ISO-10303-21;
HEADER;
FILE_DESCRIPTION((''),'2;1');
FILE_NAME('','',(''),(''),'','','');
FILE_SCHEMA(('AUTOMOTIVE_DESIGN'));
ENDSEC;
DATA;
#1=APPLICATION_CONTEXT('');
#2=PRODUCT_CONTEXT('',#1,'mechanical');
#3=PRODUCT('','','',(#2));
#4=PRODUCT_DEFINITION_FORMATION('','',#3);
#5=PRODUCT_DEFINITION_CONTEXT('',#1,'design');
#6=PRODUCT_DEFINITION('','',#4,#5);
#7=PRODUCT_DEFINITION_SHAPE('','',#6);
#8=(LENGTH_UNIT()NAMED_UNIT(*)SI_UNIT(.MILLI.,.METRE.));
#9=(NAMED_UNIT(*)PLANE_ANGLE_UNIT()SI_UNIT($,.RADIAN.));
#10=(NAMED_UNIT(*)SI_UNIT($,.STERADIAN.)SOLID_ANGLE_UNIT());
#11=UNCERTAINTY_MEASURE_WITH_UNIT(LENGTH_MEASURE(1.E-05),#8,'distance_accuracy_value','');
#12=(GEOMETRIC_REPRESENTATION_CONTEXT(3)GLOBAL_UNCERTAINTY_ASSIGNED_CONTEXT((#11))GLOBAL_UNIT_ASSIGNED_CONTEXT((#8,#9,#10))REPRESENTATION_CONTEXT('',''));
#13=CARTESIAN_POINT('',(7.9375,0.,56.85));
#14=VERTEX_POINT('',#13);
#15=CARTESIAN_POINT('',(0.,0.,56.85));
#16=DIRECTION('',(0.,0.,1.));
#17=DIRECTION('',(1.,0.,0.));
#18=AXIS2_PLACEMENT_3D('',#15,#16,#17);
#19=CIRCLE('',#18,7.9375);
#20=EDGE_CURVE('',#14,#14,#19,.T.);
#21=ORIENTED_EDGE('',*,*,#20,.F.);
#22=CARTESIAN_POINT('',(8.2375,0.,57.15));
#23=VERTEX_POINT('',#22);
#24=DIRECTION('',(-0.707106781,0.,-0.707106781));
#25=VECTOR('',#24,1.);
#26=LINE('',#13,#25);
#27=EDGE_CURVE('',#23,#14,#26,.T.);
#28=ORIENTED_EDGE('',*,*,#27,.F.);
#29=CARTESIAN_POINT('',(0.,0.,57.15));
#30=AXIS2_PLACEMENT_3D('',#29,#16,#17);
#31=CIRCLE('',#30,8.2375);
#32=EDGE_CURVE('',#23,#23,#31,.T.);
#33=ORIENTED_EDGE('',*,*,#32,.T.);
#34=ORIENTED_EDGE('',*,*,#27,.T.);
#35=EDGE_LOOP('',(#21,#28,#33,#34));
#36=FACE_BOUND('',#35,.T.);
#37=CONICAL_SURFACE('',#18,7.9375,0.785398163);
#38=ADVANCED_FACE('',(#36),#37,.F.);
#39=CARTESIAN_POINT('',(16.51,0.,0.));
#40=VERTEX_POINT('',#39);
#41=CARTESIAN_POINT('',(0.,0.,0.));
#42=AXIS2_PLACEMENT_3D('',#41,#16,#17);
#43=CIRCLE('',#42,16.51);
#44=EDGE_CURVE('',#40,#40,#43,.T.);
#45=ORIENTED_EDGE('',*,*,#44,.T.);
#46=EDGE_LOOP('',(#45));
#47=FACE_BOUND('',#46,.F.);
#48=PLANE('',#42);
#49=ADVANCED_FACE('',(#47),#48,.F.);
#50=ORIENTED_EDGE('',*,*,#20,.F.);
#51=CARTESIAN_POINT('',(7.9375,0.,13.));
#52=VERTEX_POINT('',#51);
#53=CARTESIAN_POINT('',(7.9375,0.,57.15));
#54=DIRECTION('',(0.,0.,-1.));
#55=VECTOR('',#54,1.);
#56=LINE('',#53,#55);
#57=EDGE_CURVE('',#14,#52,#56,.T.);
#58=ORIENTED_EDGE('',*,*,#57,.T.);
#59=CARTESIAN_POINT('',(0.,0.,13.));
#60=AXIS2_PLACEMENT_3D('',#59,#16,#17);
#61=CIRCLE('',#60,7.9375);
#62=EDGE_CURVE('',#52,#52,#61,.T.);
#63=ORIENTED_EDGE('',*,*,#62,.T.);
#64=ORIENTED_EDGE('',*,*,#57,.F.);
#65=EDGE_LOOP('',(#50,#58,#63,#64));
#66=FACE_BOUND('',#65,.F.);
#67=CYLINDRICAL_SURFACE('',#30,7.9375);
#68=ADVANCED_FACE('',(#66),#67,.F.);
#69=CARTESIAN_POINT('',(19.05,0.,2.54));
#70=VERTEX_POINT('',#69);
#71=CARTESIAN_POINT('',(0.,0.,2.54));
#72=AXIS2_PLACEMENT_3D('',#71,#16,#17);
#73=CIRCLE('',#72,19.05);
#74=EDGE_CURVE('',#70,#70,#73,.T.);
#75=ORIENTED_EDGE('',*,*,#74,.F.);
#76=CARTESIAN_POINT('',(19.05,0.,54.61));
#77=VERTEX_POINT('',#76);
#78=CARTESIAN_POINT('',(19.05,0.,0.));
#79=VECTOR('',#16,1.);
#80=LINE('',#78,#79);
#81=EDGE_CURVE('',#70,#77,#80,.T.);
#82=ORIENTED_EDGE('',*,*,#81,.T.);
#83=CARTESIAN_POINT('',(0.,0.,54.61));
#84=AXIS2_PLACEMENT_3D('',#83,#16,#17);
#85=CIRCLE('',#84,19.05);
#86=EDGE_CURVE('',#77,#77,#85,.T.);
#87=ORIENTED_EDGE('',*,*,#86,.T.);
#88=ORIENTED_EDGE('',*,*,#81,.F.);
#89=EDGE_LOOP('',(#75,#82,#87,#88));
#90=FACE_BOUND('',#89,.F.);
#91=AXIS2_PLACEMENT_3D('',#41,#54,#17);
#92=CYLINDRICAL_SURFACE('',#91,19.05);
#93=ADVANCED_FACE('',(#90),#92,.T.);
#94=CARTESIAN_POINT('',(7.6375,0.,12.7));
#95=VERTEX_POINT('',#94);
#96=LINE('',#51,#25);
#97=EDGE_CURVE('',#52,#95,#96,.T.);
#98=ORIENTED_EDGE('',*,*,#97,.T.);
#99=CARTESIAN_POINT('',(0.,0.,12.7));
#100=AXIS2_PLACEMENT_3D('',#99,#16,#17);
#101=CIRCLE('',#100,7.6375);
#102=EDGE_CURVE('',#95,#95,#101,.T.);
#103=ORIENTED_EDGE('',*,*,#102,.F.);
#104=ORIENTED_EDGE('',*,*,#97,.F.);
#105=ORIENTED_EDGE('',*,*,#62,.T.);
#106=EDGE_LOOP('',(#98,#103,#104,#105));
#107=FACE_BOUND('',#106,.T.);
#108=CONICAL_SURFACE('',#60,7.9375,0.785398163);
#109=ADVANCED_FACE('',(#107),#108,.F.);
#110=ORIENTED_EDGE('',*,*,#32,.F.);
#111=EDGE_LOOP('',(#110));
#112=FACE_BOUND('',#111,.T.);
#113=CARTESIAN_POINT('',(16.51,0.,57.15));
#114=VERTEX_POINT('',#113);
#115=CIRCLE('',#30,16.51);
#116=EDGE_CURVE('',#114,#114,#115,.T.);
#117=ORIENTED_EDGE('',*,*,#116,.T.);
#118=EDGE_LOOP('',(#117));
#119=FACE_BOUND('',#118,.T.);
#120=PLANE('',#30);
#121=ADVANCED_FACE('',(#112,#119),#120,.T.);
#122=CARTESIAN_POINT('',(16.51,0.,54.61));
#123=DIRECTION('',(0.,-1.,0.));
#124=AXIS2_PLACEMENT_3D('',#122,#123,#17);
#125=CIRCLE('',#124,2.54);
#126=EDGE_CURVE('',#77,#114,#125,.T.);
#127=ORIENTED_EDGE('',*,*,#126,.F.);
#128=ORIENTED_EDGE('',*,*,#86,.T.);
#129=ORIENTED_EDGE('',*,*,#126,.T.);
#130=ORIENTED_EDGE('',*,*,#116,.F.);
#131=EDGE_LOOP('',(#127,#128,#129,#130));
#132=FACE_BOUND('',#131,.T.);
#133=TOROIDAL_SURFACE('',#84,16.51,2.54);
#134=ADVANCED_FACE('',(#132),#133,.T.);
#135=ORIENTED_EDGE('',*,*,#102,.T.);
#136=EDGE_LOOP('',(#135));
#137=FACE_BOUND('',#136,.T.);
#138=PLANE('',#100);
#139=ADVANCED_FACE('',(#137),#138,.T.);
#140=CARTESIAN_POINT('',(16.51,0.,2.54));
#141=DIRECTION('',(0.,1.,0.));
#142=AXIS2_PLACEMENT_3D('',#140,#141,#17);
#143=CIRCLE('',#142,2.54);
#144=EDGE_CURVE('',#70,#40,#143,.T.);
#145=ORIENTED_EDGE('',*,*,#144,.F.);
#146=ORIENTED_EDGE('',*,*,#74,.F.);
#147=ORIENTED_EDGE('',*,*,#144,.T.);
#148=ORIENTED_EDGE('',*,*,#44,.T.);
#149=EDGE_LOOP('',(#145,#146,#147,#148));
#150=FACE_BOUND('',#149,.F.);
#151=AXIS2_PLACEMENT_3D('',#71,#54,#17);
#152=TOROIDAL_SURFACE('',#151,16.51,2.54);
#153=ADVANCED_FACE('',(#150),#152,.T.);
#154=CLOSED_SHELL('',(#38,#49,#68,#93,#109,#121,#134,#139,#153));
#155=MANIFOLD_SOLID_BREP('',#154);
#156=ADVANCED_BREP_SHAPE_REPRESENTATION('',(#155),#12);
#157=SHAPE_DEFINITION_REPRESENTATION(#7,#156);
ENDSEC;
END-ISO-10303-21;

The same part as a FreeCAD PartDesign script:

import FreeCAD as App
import Part
import Sketcher
Q = App.Units.Quantity


def edges_at(feature, points):
    """Names of the edges that pass closest to the given points."""
    edges = feature.Shape.Edges
    near = lambda p: min(range(len(edges)), key=lambda i: edges[i].distToShape(Part.Vertex(*p))[0])
    return sorted({f"Edge{near(p) + 1}" for p in points})

doc = App.newDocument("Part")
params = doc.addObject("Spreadsheet::Sheet", "Params")
for row, (alias, value) in enumerate([
    ("sketch1_diameter", "1.5 in"),
    ("pad1_length", "2.25 in"),
    ("sketch2_diameter", "0.625 in"),
    ("pocket1_length", "1.75 in"),
    ("fillet_radius", "0.1 in"),
    ("chamfer_size", "0.3 mm"),
], start=1):
    params.set(f"A{row}", alias)
    params.set(f"B{row}", "=" + value)
    params.setAlias(f"B{row}", alias)

body = doc.addObject("PartDesign::Body", "Body")

# Sketch on XY plane
sketch1 = body.newObject("Sketcher::SketchObject", "Sketch")
sketch1.AttachmentSupport = (doc.getObject("XY_Plane"), [""])
sketch1.MapMode = "FlatFace"
sketch1.addGeometry(Part.Circle(App.Vector(0, 0, 0), App.Vector(0, 0, 1), 19.05), False)
sketch1.addConstraint([
    Sketcher.Constraint("Coincident", 0, 3, -1, 1),
    Sketcher.Constraint("Diameter", 0, Q("1.5 in")),
])
sketch1.setExpression("Constraints[1]", "Params.sketch1_diameter")
pad1 = body.newObject("PartDesign::Pad", "Pad")
pad1.Profile = sketch1
pad1.setExpression("Length", "Params.pad1_length")

# Sketch on XY plane
sketch2 = body.newObject("Sketcher::SketchObject", "Sketch001")
sketch2.AttachmentSupport = (doc.getObject("XY_Plane"), [""])
sketch2.MapMode = "FlatFace"
sketch2.AttachmentOffset = App.Placement(App.Vector(0, 0, 2.25 * 25.4), App.Rotation())
sketch2.addGeometry(Part.Circle(App.Vector(0, 0, 0), App.Vector(0, 0, 1), 7.9375), False)
sketch2.addConstraint([
    Sketcher.Constraint("Coincident", 0, 3, -1, 1),
    Sketcher.Constraint("Diameter", 0, Q("0.625 in")),
])
sketch2.setExpression("Constraints[1]", "Params.sketch2_diameter")
pocket1 = body.newObject("PartDesign::Pocket", "Pocket")
pocket1.Profile = sketch2
pocket1.setExpression("Length", "Params.pocket1_length")
doc.recompute()

fillet = body.newObject("PartDesign::Fillet", "Fillet")
fillet.Base = (pocket1, edges_at(pocket1, [(-19.05, 0, 0), (-19.05, 0, 57.15)]))
fillet.setExpression("Radius", "Params.fillet_radius")
doc.recompute()

chamfer = body.newObject("PartDesign::Chamfer", "Chamfer")
chamfer.Base = (fillet, edges_at(fillet, [(-7.938, 0, 57.15), (-7.938, 0, 12.7)]))
chamfer.setExpression("Size", "Params.chamfer_size")

doc.recompute()
